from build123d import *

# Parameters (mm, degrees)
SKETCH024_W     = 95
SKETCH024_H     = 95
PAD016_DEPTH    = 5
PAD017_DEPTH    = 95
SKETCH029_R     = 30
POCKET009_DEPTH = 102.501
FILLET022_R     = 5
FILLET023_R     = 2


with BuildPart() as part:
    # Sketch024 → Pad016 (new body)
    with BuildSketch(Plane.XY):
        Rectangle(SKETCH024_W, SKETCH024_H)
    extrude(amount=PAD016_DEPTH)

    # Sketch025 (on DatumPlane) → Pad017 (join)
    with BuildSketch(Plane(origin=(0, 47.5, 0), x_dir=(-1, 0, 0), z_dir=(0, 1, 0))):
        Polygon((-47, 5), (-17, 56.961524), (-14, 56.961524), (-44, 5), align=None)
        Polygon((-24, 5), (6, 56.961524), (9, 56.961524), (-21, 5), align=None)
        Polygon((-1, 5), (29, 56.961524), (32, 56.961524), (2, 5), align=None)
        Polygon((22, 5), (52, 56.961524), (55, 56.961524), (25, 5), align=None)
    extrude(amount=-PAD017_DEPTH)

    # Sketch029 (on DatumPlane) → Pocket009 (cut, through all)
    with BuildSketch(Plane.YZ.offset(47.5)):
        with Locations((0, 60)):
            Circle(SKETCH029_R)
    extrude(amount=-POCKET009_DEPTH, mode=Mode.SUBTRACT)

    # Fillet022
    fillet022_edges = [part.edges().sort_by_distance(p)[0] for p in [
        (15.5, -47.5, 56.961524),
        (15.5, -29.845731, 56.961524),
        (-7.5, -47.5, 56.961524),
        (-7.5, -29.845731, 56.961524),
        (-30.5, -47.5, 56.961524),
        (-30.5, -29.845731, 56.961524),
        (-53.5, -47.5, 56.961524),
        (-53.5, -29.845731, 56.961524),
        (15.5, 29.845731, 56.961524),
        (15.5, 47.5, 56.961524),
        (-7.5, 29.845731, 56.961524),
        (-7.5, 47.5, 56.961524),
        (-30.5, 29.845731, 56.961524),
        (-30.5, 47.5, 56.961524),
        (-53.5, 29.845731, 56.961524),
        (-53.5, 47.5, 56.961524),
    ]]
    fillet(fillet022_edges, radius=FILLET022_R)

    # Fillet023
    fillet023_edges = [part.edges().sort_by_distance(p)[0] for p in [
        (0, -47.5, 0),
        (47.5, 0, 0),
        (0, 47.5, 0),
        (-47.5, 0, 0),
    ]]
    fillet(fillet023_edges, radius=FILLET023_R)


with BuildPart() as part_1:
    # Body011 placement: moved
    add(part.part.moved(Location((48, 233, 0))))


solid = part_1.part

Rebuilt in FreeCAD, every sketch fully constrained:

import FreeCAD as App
import Part
import Sketcher
Q = App.Units.Quantity


def edges_at(feature, points):
    """Names of the edges that pass closest to the given points."""
    edges = feature.Shape.Edges
    near = lambda p: min(range(len(edges)), key=lambda i: edges[i].distToShape(Part.Vertex(*p))[0])
    return sorted({f"Edge{near(p) + 1}" for p in points})

doc = App.newDocument("Part")
params = doc.addObject("Spreadsheet::Sheet", "Params")
for row, (alias, value) in enumerate([
    ("sketch1_width", "95 mm"),
    ("pad1_length", "5 mm"),
    ("sketch2_width", "3 mm"),
    ("sketch2_length", "60 mm"),
    ("pad2_length", "95 mm"),
    ("sketch3_diameter", "60 mm"),
    ("fillet_radius", "5 mm"),
    ("fillet2_radius", "2 mm"),
], start=1):
    params.set(f"A{row}", alias)
    params.set(f"B{row}", "=" + value)
    params.setAlias(f"B{row}", alias)

body = doc.addObject("PartDesign::Body", "Body")

sketch1 = body.newObject("Sketcher::SketchObject", "Sketch")
sketch1.AttachmentSupport = (doc.getObject("XY_Plane"), [""])
sketch1.MapMode = "FlatFace"
sketch1.addGeometry(Part.LineSegment(App.Vector(-47.5, 47.5, 0), App.Vector(-47.5, -47.5, 0)), False)
sketch1.addGeometry(Part.LineSegment(App.Vector(-47.5, -47.5, 0), App.Vector(47.5, -47.5, 0)), False)
sketch1.addGeometry(Part.LineSegment(App.Vector(47.5, -47.5, 0), App.Vector(47.5, 47.5, 0)), False)
sketch1.addGeometry(Part.LineSegment(App.Vector(47.5, 47.5, 0), App.Vector(-47.5, 47.5, 0)), False)
sketch1.addConstraint(Sketcher.Constraint("Coincident", 0, 2, 1, 1))
sketch1.addConstraint(Sketcher.Constraint("Coincident", 1, 2, 2, 1))
sketch1.addConstraint(Sketcher.Constraint("Coincident", 2, 2, 3, 1))
sketch1.addConstraint(Sketcher.Constraint("Coincident", 3, 2, 0, 1))
sketch1.addConstraint(Sketcher.Constraint("Vertical", 0))
sketch1.addConstraint(Sketcher.Constraint("Horizontal", 1))
sketch1.addConstraint(Sketcher.Constraint("Vertical", 2))
sketch1.addConstraint(Sketcher.Constraint("Horizontal", 3))
sketch1.addConstraint(Sketcher.Constraint("Symmetric", 0, 2, 2, 2, -1, 1))
sketch1.addConstraint(Sketcher.Constraint("Equal", 3, 0))
sketch1.addConstraint(Sketcher.Constraint("DistanceX", 1, 1, 1, 2, Q("95 mm")))
sketch1.setExpression("Constraints[10]", "Params.sketch1_width")
pad1 = body.newObject("PartDesign::Pad", "Pad")
pad1.Profile = sketch1
pad1.setExpression("Length", "Params.pad1_length")

sketch2 = body.newObject("Sketcher::SketchObject", "Sketch001")
sketch2.AttachmentSupport = (doc.getObject("XZ_Plane"), [""])
sketch2.MapMode = "FlatFace"
sketch2.AttachmentOffset = App.Placement(App.Vector(0, 0, -47.5), App.Rotation())
sketch2.addGeometry(Part.LineSegment(App.Vector(17, 56.961524, 0), App.Vector(47, 5, 0)), False)
sketch2.addGeometry(Part.LineSegment(App.Vector(47, 5, 0), App.Vector(44, 5, 0)), False)
sketch2.addGeometry(Part.LineSegment(App.Vector(44, 5, 0), App.Vector(14, 56.961524, 0)), False)
sketch2.addGeometry(Part.LineSegment(App.Vector(14, 56.961524, 0), App.Vector(17, 56.961524, 0)), False)
sketch2.addGeometry(Part.LineSegment(App.Vector(-6, 56.961524, 0), App.Vector(24, 5, 0)), False)
sketch2.addGeometry(Part.LineSegment(App.Vector(24, 5, 0), App.Vector(21, 5, 0)), False)
sketch2.addGeometry(Part.LineSegment(App.Vector(21, 5, 0), App.Vector(-9, 56.961524, 0)), False)
sketch2.addGeometry(Part.LineSegment(App.Vector(-9, 56.961524, 0), App.Vector(-6, 56.961524, 0)), False)
sketch2.addGeometry(Part.LineSegment(App.Vector(-29, 56.961524, 0), App.Vector(1, 5, 0)), False)
sketch2.addGeometry(Part.LineSegment(App.Vector(1, 5, 0), App.Vector(-2, 5, 0)), False)
sketch2.addGeometry(Part.LineSegment(App.Vector(-2, 5, 0), App.Vector(-32, 56.961524, 0)), False)
sketch2.addGeometry(Part.LineSegment(App.Vector(-32, 56.961524, 0), App.Vector(-29, 56.961524, 0)), False)
sketch2.addGeometry(Part.LineSegment(App.Vector(-52, 56.961524, 0), App.Vector(-22, 5, 0)), False)
sketch2.addGeometry(Part.LineSegment(App.Vector(-22, 5, 0), App.Vector(-25, 5, 0)), False)
sketch2.addGeometry(Part.LineSegment(App.Vector(-25, 5, 0), App.Vector(-55, 56.961524, 0)), False)
sketch2.addGeometry(Part.LineSegment(App.Vector(-55, 56.961524, 0), App.Vector(-52, 56.961524, 0)), False)
sketch2.addConstraint(Sketcher.Constraint("Coincident", 0, 2, 1, 1))
sketch2.addConstraint(Sketcher.Constraint("Coincident", 1, 2, 2, 1))
sketch2.addConstraint(Sketcher.Constraint("Coincident", 2, 2, 3, 1))
sketch2.addConstraint(Sketcher.Constraint("Coincident", 3, 2, 0, 1))
sketch2.addConstraint(Sketcher.Constraint("Coincident", 4, 2, 5, 1))
sketch2.addConstraint(Sketcher.Constraint("Coincident", 5, 2, 6, 1))
sketch2.addConstraint(Sketcher.Constraint("Coincident", 6, 2, 7, 1))
sketch2.addConstraint(Sketcher.Constraint("Coincident", 7, 2, 4, 1))
sketch2.addConstraint(Sketcher.Constraint("Coincident", 8, 2, 9, 1))
sketch2.addConstraint(Sketcher.Constraint("Coincident", 9, 2, 10, 1))
sketch2.addConstraint(Sketcher.Constraint("Coincident", 10, 2, 11, 1))
sketch2.addConstraint(Sketcher.Constraint("Coincident", 11, 2, 8, 1))
sketch2.addConstraint(Sketcher.Constraint("Coincident", 12, 2, 13, 1))
sketch2.addConstraint(Sketcher.Constraint("Coincident", 13, 2, 14, 1))
sketch2.addConstraint(Sketcher.Constraint("Coincident", 14, 2, 15, 1))
sketch2.addConstraint(Sketcher.Constraint("Coincident", 15, 2, 12, 1))
sketch2.addConstraint(Sketcher.Constraint("Horizontal", 1))
sketch2.addConstraint(Sketcher.Constraint("Horizontal", 3))
sketch2.addConstraint(Sketcher.Constraint("Horizontal", 5))
sketch2.addConstraint(Sketcher.Constraint("Horizontal", 7))
sketch2.addConstraint(Sketcher.Constraint("Horizontal", 9))
sketch2.addConstraint(Sketcher.Constraint("Horizontal", 11))
sketch2.addConstraint(Sketcher.Constraint("Horizontal", 13))
sketch2.addConstraint(Sketcher.Constraint("Horizontal", 15))
sketch2.addConstraint(Sketcher.Constraint("Parallel", 0, 2))
sketch2.addConstraint(Sketcher.Constraint("Parallel", 2, 4))
sketch2.addConstraint(Sketcher.Constraint("Parallel", 4, 6))
sketch2.addConstraint(Sketcher.Constraint("Parallel", 6, 8))
sketch2.addConstraint(Sketcher.Constraint("Parallel", 8, 10))
sketch2.addConstraint(Sketcher.Constraint("Parallel", 10, 12))
sketch2.addConstraint(Sketcher.Constraint("Parallel", 12, 14))
sketch2.addConstraint(Sketcher.Constraint("Horizontal", 1, 2, 4, 2))
sketch2.addConstraint(Sketcher.Constraint("Horizontal", 3, 2, 6, 2))
sketch2.addConstraint(Sketcher.Constraint("Horizontal", 5, 2, 8, 2))
sketch2.addConstraint(Sketcher.Constraint("Horizontal", 7, 2, 10, 2))
sketch2.addConstraint(Sketcher.Constraint("Horizontal", 9, 2, 12, 2))
sketch2.addConstraint(Sketcher.Constraint("Horizontal", 11, 2, 14, 2))
sketch2.addConstraint(Sketcher.Constraint("Equal", 3, 5))
sketch2.addConstraint(Sketcher.Constraint("Equal", 7, 9))
sketch2.addConstraint(Sketcher.Constraint("Equal", 11, 13))
sketch2.addConstraint(Sketcher.Constraint("DistanceX", 1, 2, 1, 1, Q("3 mm")))
sketch2.addConstraint(Sketcher.Constraint("Angle", 0, Q("-60 deg")))
sketch2.addConstraint(Sketcher.Constraint("Distance", 0, Q("60 mm")))
sketch2.addConstraint(Sketcher.Constraint("DistanceX", -1, 1, 0, 2, Q("47 mm")))
sketch2.addConstraint(Sketcher.Constraint("DistanceY", -1, 1, 0, 2, Q("5 mm")))
sketch2.addConstraint(Sketcher.Constraint("DistanceX", -1, 1, 4, 2, Q("24 mm")))
sketch2.addConstraint(Sketcher.Constraint("DistanceX", -1, 1, 8, 2, Q("1 mm")))
sketch2.addConstraint(Sketcher.Constraint("DistanceX", 12, 2, -1, 1, Q("22 mm")))
sketch2.setExpression("Constraints[40]", "Params.sketch2_width")
sketch2.setExpression("Constraints[42]", "Params.sketch2_length")
pad2 = body.newObject("PartDesign::Pad", "Pad001")
pad2.Profile = sketch2
pad2.setExpression("Length", "Params.pad2_length")

sketch3 = body.newObject("Sketcher::SketchObject", "Sketch002")
sketch3.AttachmentSupport = (doc.getObject("YZ_Plane"), [""])
sketch3.MapMode = "FlatFace"
sketch3.AttachmentOffset = App.Placement(App.Vector(0, 0, 47.5), App.Rotation())
sketch3.addGeometry(Part.Circle(App.Vector(0, 60, 0), App.Vector(0, 0, 1), 30), False)
sketch3.addConstraint(Sketcher.Constraint("PointOnObject", 0, 3, -2))
sketch3.addConstraint(Sketcher.Constraint("Diameter", 0, Q("60 mm")))
sketch3.addConstraint(Sketcher.Constraint("DistanceY", -1, 1, 0, 3, Q("60 mm")))
sketch3.setExpression("Constraints[1]", "Params.sketch3_diameter")
pocket1 = body.newObject("PartDesign::Pocket", "Pocket")
pocket1.Profile = sketch3
pocket1.Type = "ThroughAll"
doc.recompute()

fillet = body.newObject("PartDesign::Fillet", "Fillet")
fillet.Base = (pocket1, edges_at(pocket1, [
    (15.5, -47.5, 56.962),
    (15.5, -29.846, 56.962),
    (-7.5, -47.5, 56.962),
    (-7.5, -29.846, 56.962),
    (-30.5, -47.5, 56.962),
    (-30.5, -29.846, 56.962),
    (-53.5, -47.5, 56.962),
    (-53.5, -29.846, 56.962),
    (15.5, 29.846, 56.962),
    (15.5, 47.5, 56.962),
    (-7.5, 29.846, 56.962),
    (-7.5, 47.5, 56.962),
    (-30.5, 29.846, 56.962),
    (-30.5, 47.5, 56.962),
    (-53.5, 29.846, 56.962),
    (-53.5, 47.5, 56.962),
]))
fillet.setExpression("Radius", "Params.fillet_radius")
doc.recompute()

fillet2 = body.newObject("PartDesign::Fillet", "Fillet001")
fillet2.Base = (fillet, edges_at(fillet, [
    (0, -47.5, 0),
    (47.5, 0, 0),
    (0, 47.5, 0),
    (-47.5, 0, 0),
]))
fillet2.setExpression("Radius", "Params.fillet2_radius")
body2 = doc.addObject("PartDesign::Body", "Body001")
doc.recompute()

body.Placement = App.Placement(App.Vector(48, 233, 0), App.Rotation(App.Vector(0, 0, 1), 0))
boolean = body2.newObject("PartDesign::Boolean", "Boolean")
boolean.Type = "Fuse"
boolean.addObjects([body])

doc.recompute()
